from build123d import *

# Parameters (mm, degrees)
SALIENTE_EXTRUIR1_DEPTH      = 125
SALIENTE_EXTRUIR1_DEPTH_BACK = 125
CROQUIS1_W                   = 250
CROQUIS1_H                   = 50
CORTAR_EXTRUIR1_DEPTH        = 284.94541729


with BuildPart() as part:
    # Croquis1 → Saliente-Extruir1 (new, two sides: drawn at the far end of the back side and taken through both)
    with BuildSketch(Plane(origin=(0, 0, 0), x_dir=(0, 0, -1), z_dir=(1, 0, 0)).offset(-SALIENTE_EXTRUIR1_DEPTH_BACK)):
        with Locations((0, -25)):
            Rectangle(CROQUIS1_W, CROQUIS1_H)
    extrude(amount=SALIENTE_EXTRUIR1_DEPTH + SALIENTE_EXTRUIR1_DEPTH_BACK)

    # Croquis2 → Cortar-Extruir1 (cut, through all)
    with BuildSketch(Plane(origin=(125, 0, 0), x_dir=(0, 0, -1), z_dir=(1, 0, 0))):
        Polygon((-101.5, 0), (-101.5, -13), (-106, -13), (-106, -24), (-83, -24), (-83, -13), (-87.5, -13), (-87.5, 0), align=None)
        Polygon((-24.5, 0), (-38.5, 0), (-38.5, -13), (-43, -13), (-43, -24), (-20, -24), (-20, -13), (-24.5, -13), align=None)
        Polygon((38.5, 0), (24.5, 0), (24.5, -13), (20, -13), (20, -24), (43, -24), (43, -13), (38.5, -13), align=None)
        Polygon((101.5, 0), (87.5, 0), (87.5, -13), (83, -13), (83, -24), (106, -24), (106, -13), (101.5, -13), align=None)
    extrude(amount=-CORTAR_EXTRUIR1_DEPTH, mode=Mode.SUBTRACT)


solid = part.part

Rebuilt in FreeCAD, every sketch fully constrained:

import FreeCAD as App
import Part
import Sketcher
from FreeCAD import Vector

doc = App.newDocument("Part")
body = doc.addObject("PartDesign::Body", "Body")

sketch1 = body.newObject("Sketcher::SketchObject", "Sketch")
sketch1.AttachmentSupport = (doc.getObject("YZ_Plane"), [""])
sketch1.MapMode = "FlatFace"
sketch1.addGeometry(Part.LineSegment(Vector(0, 125, 0), Vector(-50, 125, 0)), False)
sketch1.addGeometry(Part.LineSegment(Vector(-50, 125, 0), Vector(-50, -125, 0)), False)
sketch1.addGeometry(Part.LineSegment(Vector(-50, -125, 0), Vector(0, -125, 0)), False)
sketch1.addGeometry(Part.LineSegment(Vector(0, -125, 0), Vector(0, 125, 0)), False)
sketch1.addConstraint(Sketcher.Constraint("Coincident", 0, 2, 1, 1))
sketch1.addConstraint(Sketcher.Constraint("Coincident", 1, 2, 2, 1))
sketch1.addConstraint(Sketcher.Constraint("Coincident", 2, 2, 3, 1))
sketch1.addConstraint(Sketcher.Constraint("Coincident", 3, 2, 0, 1))
sketch1.addConstraint(Sketcher.Constraint("Horizontal", 0))
sketch1.addConstraint(Sketcher.Constraint("Vertical", 1))
sketch1.addConstraint(Sketcher.Constraint("Horizontal", 2))
sketch1.addConstraint(Sketcher.Constraint("Vertical", 3))
sketch1.addConstraint(Sketcher.Constraint("Symmetric", 2, 2, 3, 2, -1, 1))
sketch1.addConstraint(Sketcher.Constraint("DistanceX", 0, 2, 0, 1, 50.0))
sketch1.addConstraint(Sketcher.Constraint("DistanceY", 1, 2, 1, 1, 250.0))
pad1 = body.newObject("PartDesign::Pad", "Pad")
pad1.Profile = sketch1
pad1.Type = "TwoLengths"
pad1.Length = 125
pad1.Length2 = 125

sketch2 = body.newObject("Sketcher::SketchObject", "Sketch001")
sketch2.AttachmentSupport = (doc.getObject("YZ_Plane"), [""])
sketch2.MapMode = "FlatFace"
sketch2.AttachmentOffset = App.Placement(Vector(0, 0, 125), App.Rotation())
sketch2.addGeometry(Part.LineSegment(Vector(0, 101.5, 0), Vector(-13, 101.5, 0)), False)
sketch2.addGeometry(Part.LineSegment(Vector(-13, 101.5, 0), Vector(-13, 106, 0)), False)
sketch2.addGeometry(Part.LineSegment(Vector(-13, 106, 0), Vector(-24, 106, 0)), False)
sketch2.addGeometry(Part.LineSegment(Vector(-24, 106, 0), Vector(-24, 83, 0)), False)
sketch2.addGeometry(Part.LineSegment(Vector(-24, 83, 0), Vector(-13, 83, 0)), False)
sketch2.addGeometry(Part.LineSegment(Vector(-13, 83, 0), Vector(-13, 87.5, 0)), False)
sketch2.addGeometry(Part.LineSegment(Vector(-13, 87.5, 0), Vector(0, 87.5, 0)), False)
sketch2.addGeometry(Part.LineSegment(Vector(0, 87.5, 0), Vector(0, 101.5, 0)), False)
sketch2.addGeometry(Part.LineSegment(Vector(0, 24.5, 0), Vector(0, 38.5, 0)), False)
sketch2.addGeometry(Part.LineSegment(Vector(0, 38.5, 0), Vector(-13, 38.5, 0)), False)
sketch2.addGeometry(Part.LineSegment(Vector(-13, 38.5, 0), Vector(-13, 43, 0)), False)
sketch2.addGeometry(Part.LineSegment(Vector(-13, 43, 0), Vector(-24, 43, 0)), False)
sketch2.addGeometry(Part.LineSegment(Vector(-24, 43, 0), Vector(-24, 20, 0)), False)
sketch2.addGeometry(Part.LineSegment(Vector(-24, 20, 0), Vector(-13, 20, 0)), False)
sketch2.addGeometry(Part.LineSegment(Vector(-13, 20, 0), Vector(-13, 24.5, 0)), False)
sketch2.addGeometry(Part.LineSegment(Vector(-13, 24.5, 0), Vector(0, 24.5, 0)), False)
sketch2.addGeometry(Part.LineSegment(Vector(0, -38.5, 0), Vector(0, -24.5, 0)), False)
sketch2.addGeometry(Part.LineSegment(Vector(0, -24.5, 0), Vector(-13, -24.5, 0)), False)
sketch2.addGeometry(Part.LineSegment(Vector(-13, -24.5, 0), Vector(-13, -20, 0)), False)
sketch2.addGeometry(Part.LineSegment(Vector(-13, -20, 0), Vector(-24, -20, 0)), False)
sketch2.addGeometry(Part.LineSegment(Vector(-24, -20, 0), Vector(-24, -43, 0)), False)
sketch2.addGeometry(Part.LineSegment(Vector(-24, -43, 0), Vector(-13, -43, 0)), False)
sketch2.addGeometry(Part.LineSegment(Vector(-13, -43, 0), Vector(-13, -38.5, 0)), False)
sketch2.addGeometry(Part.LineSegment(Vector(-13, -38.5, 0), Vector(0, -38.5, 0)), False)
sketch2.addGeometry(Part.LineSegment(Vector(0, -101.5, 0), Vector(0, -87.5, 0)), False)
sketch2.addGeometry(Part.LineSegment(Vector(0, -87.5, 0), Vector(-13, -87.5, 0)), False)
sketch2.addGeometry(Part.LineSegment(Vector(-13, -87.5, 0), Vector(-13, -83, 0)), False)
sketch2.addGeometry(Part.LineSegment(Vector(-13, -83, 0), Vector(-24, -83, 0)), False)
sketch2.addGeometry(Part.LineSegment(Vector(-24, -83, 0), Vector(-24, -106, 0)), False)
sketch2.addGeometry(Part.LineSegment(Vector(-24, -106, 0), Vector(-13, -106, 0)), False)
sketch2.addGeometry(Part.LineSegment(Vector(-13, -106, 0), Vector(-13, -101.5, 0)), False)
sketch2.addGeometry(Part.LineSegment(Vector(-13, -101.5, 0), Vector(0, -101.5, 0)), False)
sketch2.addConstraint(Sketcher.Constraint("Coincident", 0, 2, 1, 1))
sketch2.addConstraint(Sketcher.Constraint("Coincident", 1, 2, 2, 1))
sketch2.addConstraint(Sketcher.Constraint("Coincident", 2, 2, 3, 1))
sketch2.addConstraint(Sketcher.Constraint("Coincident", 3, 2, 4, 1))
sketch2.addConstraint(Sketcher.Constraint("Coincident", 4, 2, 5, 1))
sketch2.addConstraint(Sketcher.Constraint("Coincident", 5, 2, 6, 1))
sketch2.addConstraint(Sketcher.Constraint("Coincident", 6, 2, 7, 1))
sketch2.addConstraint(Sketcher.Constraint("Coincident", 7, 2, 0, 1))
sketch2.addConstraint(Sketcher.Constraint("Coincident", 8, 2, 9, 1))
sketch2.addConstraint(Sketcher.Constraint("Coincident", 9, 2, 10, 1))
sketch2.addConstraint(Sketcher.Constraint("Coincident", 10, 2, 11, 1))
sketch2.addConstraint(Sketcher.Constraint("Coincident", 11, 2, 12, 1))
sketch2.addConstraint(Sketcher.Constraint("Coincident", 12, 2, 13, 1))
sketch2.addConstraint(Sketcher.Constraint("Coincident", 13, 2, 14, 1))
sketch2.addConstraint(Sketcher.Constraint("Coincident", 14, 2, 15, 1))
sketch2.addConstraint(Sketcher.Constraint("Coincident", 15, 2, 8, 1))
sketch2.addConstraint(Sketcher.Constraint("Coincident", 16, 2, 17, 1))
sketch2.addConstraint(Sketcher.Constraint("Coincident", 17, 2, 18, 1))
sketch2.addConstraint(Sketcher.Constraint("Coincident", 18, 2, 19, 1))
sketch2.addConstraint(Sketcher.Constraint("Coincident", 19, 2, 20, 1))
sketch2.addConstraint(Sketcher.Constraint("Coincident", 20, 2, 21, 1))
sketch2.addConstraint(Sketcher.Constraint("Coincident", 21, 2, 22, 1))
sketch2.addConstraint(Sketcher.Constraint("Coincident", 22, 2, 23, 1))
sketch2.addConstraint(Sketcher.Constraint("Coincident", 23, 2, 16, 1))
sketch2.addConstraint(Sketcher.Constraint("Coincident", 24, 2, 25, 1))
sketch2.addConstraint(Sketcher.Constraint("Coincident", 25, 2, 26, 1))
sketch2.addConstraint(Sketcher.Constraint("Coincident", 26, 2, 27, 1))
sketch2.addConstraint(Sketcher.Constraint("Coincident", 27, 2, 28, 1))
sketch2.addConstraint(Sketcher.Constraint("Coincident", 28, 2, 29, 1))
sketch2.addConstraint(Sketcher.Constraint("Coincident", 29, 2, 30, 1))
sketch2.addConstraint(Sketcher.Constraint("Coincident", 30, 2, 31, 1))
sketch2.addConstraint(Sketcher.Constraint("Coincident", 31, 2, 24, 1))
sketch2.addConstraint(Sketcher.Constraint("Horizontal", 0))
sketch2.addConstraint(Sketcher.Constraint("Vertical", 1))
sketch2.addConstraint(Sketcher.Constraint("Horizontal", 2))
sketch2.addConstraint(Sketcher.Constraint("Vertical", 3))
sketch2.addConstraint(Sketcher.Constraint("Horizontal", 4))
sketch2.addConstraint(Sketcher.Constraint("Vertical", 5))
sketch2.addConstraint(Sketcher.Constraint("Horizontal", 6))
sketch2.addConstraint(Sketcher.Constraint("Vertical", 7))
sketch2.addConstraint(Sketcher.Constraint("Vertical", 8))
sketch2.addConstraint(Sketcher.Constraint("Horizontal", 9))
sketch2.addConstraint(Sketcher.Constraint("Vertical", 10))
sketch2.addConstraint(Sketcher.Constraint("Horizontal", 11))
sketch2.addConstraint(Sketcher.Constraint("Vertical", 12))
sketch2.addConstraint(Sketcher.Constraint("Horizontal", 13))
sketch2.addConstraint(Sketcher.Constraint("Vertical", 14))
sketch2.addConstraint(Sketcher.Constraint("Horizontal", 15))
sketch2.addConstraint(Sketcher.Constraint("Vertical", 16))
sketch2.addConstraint(Sketcher.Constraint("Horizontal", 17))
sketch2.addConstraint(Sketcher.Constraint("Vertical", 18))
sketch2.addConstraint(Sketcher.Constraint("Horizontal", 19))
sketch2.addConstraint(Sketcher.Constraint("Vertical", 20))
sketch2.addConstraint(Sketcher.Constraint("Horizontal", 21))
sketch2.addConstraint(Sketcher.Constraint("Vertical", 22))
sketch2.addConstraint(Sketcher.Constraint("Horizontal", 23))
sketch2.addConstraint(Sketcher.Constraint("Vertical", 24))
sketch2.addConstraint(Sketcher.Constraint("Horizontal", 25))
sketch2.addConstraint(Sketcher.Constraint("Vertical", 26))
sketch2.addConstraint(Sketcher.Constraint("Horizontal", 27))
sketch2.addConstraint(Sketcher.Constraint("Vertical", 28))
sketch2.addConstraint(Sketcher.Constraint("Horizontal", 29))
sketch2.addConstraint(Sketcher.Constraint("Vertical", 30))
sketch2.addConstraint(Sketcher.Constraint("Horizontal", 31))
sketch2.addConstraint(Sketcher.Constraint("Symmetric", 15, 2, 16, 2, -1, 1))
sketch2.addConstraint(Sketcher.Constraint("Symmetric", 6, 2, 24, 2, -1, 1))
sketch2.addConstraint(Sketcher.Constraint("Symmetric", 13, 2, 18, 2, -1))
sketch2.addConstraint(Sketcher.Constraint("Symmetric", 11, 2, 20, 2, -1))
sketch2.addConstraint(Sketcher.Constraint("Symmetric", 9, 2, 22, 2, -1))
sketch2.addConstraint(Sketcher.Constraint("Symmetric", 4, 2, 26, 2, -1))
sketch2.addConstraint(Sketcher.Constraint("Symmetric", 2, 2, 28, 2, -1))
sketch2.addConstraint(Sketcher.Constraint("Symmetric", 0, 2, 30, 2, -1))
sketch2.addConstraint(Sketcher.Constraint("PointOnObject", 6, 2, -2))
sketch2.addConstraint(Sketcher.Constraint("PointOnObject", 8, 2, -2))
sketch2.addConstraint(Sketcher.Constraint("Vertical", 1, 2, 4, 2))
sketch2.addConstraint(Sketcher.Constraint("Vertical", 5, 2, 9, 2))
sketch2.addConstraint(Sketcher.Constraint("Vertical", 3, 2, 11, 2))
sketch2.addConstraint(Sketcher.Constraint("Vertical", 10, 2, 13, 2))
sketch2.addConstraint(Sketcher.Constraint("Equal", 1, 5))
sketch2.addConstraint(Sketcher.Constraint("Equal", 7, 8))
sketch2.addConstraint(Sketcher.Constraint("Equal", 5, 10))
sketch2.addConstraint(Sketcher.Constraint("Equal", 3, 12))
sketch2.addConstraint(Sketcher.Constraint("DistanceX", 0, 2, 0, 1, 13.0))
sketch2.addConstraint(Sketcher.Constraint("DistanceX", 2, 2, 2, 1, 11.0))
sketch2.addConstraint(Sketcher.Constraint("DistanceY", 3, 2, 3, 1, 23.0))
sketch2.addConstraint(Sketcher.Constraint("DistanceY", 7, 1, 7, 2, 14.0))
sketch2.addConstraint(Sketcher.Constraint("DistanceY", -1, 1, 1, 2, 106.0))
sketch2.addConstraint(Sketcher.Constraint("DistanceY", -1, 1, 10, 2, 43.0))
pocket1 = body.newObject("PartDesign::Pocket", "Pocket")
pocket1.Profile = sketch2
pocket1.Type = "ThroughAll"

doc.recompute()
